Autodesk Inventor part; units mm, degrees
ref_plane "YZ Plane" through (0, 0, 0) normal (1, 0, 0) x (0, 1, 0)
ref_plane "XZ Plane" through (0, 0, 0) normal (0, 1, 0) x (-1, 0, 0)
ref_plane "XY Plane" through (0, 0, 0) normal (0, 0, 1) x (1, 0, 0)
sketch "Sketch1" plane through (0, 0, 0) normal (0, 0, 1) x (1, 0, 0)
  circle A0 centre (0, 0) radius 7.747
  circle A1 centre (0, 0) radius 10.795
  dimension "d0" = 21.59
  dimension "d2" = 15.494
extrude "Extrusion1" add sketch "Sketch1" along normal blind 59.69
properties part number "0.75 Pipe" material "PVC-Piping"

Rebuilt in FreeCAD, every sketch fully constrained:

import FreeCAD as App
import Part
import Sketcher
from FreeCAD import Vector
Q = App.Units.Quantity

doc = App.newDocument("Part")
body = doc.addObject("PartDesign::Body", "Body")

# Sketch on XY plane
sketch1 = body.newObject("Sketcher::SketchObject", "Sketch")
sketch1.AttachmentSupport = (doc.getObject("XY_Plane"), [""])
sketch1.MapMode = "FlatFace"
sketch1.addGeometry([
    Part.Circle(Vector(0, 0, 0), Vector(0, 0, 1), 11),
    Part.Circle(Vector(0, 0, 0), Vector(0, 0, 1), 8),
], False)
sketch1.addConstraint([
    Sketcher.Constraint("Coincident", 0, 3, -1, 1),
    Sketcher.Constraint("Coincident", 1, 3, -1, 1),
    Sketcher.Constraint("Diameter", 0, Q("0.85 in")),
    Sketcher.Constraint("Diameter", 1, Q("0.61 in")),
])
pad1 = body.newObject("PartDesign::Pad", "Pad")
pad1.Profile = sketch1
pad1.Length = Q("2.35 in")

doc.recompute()
